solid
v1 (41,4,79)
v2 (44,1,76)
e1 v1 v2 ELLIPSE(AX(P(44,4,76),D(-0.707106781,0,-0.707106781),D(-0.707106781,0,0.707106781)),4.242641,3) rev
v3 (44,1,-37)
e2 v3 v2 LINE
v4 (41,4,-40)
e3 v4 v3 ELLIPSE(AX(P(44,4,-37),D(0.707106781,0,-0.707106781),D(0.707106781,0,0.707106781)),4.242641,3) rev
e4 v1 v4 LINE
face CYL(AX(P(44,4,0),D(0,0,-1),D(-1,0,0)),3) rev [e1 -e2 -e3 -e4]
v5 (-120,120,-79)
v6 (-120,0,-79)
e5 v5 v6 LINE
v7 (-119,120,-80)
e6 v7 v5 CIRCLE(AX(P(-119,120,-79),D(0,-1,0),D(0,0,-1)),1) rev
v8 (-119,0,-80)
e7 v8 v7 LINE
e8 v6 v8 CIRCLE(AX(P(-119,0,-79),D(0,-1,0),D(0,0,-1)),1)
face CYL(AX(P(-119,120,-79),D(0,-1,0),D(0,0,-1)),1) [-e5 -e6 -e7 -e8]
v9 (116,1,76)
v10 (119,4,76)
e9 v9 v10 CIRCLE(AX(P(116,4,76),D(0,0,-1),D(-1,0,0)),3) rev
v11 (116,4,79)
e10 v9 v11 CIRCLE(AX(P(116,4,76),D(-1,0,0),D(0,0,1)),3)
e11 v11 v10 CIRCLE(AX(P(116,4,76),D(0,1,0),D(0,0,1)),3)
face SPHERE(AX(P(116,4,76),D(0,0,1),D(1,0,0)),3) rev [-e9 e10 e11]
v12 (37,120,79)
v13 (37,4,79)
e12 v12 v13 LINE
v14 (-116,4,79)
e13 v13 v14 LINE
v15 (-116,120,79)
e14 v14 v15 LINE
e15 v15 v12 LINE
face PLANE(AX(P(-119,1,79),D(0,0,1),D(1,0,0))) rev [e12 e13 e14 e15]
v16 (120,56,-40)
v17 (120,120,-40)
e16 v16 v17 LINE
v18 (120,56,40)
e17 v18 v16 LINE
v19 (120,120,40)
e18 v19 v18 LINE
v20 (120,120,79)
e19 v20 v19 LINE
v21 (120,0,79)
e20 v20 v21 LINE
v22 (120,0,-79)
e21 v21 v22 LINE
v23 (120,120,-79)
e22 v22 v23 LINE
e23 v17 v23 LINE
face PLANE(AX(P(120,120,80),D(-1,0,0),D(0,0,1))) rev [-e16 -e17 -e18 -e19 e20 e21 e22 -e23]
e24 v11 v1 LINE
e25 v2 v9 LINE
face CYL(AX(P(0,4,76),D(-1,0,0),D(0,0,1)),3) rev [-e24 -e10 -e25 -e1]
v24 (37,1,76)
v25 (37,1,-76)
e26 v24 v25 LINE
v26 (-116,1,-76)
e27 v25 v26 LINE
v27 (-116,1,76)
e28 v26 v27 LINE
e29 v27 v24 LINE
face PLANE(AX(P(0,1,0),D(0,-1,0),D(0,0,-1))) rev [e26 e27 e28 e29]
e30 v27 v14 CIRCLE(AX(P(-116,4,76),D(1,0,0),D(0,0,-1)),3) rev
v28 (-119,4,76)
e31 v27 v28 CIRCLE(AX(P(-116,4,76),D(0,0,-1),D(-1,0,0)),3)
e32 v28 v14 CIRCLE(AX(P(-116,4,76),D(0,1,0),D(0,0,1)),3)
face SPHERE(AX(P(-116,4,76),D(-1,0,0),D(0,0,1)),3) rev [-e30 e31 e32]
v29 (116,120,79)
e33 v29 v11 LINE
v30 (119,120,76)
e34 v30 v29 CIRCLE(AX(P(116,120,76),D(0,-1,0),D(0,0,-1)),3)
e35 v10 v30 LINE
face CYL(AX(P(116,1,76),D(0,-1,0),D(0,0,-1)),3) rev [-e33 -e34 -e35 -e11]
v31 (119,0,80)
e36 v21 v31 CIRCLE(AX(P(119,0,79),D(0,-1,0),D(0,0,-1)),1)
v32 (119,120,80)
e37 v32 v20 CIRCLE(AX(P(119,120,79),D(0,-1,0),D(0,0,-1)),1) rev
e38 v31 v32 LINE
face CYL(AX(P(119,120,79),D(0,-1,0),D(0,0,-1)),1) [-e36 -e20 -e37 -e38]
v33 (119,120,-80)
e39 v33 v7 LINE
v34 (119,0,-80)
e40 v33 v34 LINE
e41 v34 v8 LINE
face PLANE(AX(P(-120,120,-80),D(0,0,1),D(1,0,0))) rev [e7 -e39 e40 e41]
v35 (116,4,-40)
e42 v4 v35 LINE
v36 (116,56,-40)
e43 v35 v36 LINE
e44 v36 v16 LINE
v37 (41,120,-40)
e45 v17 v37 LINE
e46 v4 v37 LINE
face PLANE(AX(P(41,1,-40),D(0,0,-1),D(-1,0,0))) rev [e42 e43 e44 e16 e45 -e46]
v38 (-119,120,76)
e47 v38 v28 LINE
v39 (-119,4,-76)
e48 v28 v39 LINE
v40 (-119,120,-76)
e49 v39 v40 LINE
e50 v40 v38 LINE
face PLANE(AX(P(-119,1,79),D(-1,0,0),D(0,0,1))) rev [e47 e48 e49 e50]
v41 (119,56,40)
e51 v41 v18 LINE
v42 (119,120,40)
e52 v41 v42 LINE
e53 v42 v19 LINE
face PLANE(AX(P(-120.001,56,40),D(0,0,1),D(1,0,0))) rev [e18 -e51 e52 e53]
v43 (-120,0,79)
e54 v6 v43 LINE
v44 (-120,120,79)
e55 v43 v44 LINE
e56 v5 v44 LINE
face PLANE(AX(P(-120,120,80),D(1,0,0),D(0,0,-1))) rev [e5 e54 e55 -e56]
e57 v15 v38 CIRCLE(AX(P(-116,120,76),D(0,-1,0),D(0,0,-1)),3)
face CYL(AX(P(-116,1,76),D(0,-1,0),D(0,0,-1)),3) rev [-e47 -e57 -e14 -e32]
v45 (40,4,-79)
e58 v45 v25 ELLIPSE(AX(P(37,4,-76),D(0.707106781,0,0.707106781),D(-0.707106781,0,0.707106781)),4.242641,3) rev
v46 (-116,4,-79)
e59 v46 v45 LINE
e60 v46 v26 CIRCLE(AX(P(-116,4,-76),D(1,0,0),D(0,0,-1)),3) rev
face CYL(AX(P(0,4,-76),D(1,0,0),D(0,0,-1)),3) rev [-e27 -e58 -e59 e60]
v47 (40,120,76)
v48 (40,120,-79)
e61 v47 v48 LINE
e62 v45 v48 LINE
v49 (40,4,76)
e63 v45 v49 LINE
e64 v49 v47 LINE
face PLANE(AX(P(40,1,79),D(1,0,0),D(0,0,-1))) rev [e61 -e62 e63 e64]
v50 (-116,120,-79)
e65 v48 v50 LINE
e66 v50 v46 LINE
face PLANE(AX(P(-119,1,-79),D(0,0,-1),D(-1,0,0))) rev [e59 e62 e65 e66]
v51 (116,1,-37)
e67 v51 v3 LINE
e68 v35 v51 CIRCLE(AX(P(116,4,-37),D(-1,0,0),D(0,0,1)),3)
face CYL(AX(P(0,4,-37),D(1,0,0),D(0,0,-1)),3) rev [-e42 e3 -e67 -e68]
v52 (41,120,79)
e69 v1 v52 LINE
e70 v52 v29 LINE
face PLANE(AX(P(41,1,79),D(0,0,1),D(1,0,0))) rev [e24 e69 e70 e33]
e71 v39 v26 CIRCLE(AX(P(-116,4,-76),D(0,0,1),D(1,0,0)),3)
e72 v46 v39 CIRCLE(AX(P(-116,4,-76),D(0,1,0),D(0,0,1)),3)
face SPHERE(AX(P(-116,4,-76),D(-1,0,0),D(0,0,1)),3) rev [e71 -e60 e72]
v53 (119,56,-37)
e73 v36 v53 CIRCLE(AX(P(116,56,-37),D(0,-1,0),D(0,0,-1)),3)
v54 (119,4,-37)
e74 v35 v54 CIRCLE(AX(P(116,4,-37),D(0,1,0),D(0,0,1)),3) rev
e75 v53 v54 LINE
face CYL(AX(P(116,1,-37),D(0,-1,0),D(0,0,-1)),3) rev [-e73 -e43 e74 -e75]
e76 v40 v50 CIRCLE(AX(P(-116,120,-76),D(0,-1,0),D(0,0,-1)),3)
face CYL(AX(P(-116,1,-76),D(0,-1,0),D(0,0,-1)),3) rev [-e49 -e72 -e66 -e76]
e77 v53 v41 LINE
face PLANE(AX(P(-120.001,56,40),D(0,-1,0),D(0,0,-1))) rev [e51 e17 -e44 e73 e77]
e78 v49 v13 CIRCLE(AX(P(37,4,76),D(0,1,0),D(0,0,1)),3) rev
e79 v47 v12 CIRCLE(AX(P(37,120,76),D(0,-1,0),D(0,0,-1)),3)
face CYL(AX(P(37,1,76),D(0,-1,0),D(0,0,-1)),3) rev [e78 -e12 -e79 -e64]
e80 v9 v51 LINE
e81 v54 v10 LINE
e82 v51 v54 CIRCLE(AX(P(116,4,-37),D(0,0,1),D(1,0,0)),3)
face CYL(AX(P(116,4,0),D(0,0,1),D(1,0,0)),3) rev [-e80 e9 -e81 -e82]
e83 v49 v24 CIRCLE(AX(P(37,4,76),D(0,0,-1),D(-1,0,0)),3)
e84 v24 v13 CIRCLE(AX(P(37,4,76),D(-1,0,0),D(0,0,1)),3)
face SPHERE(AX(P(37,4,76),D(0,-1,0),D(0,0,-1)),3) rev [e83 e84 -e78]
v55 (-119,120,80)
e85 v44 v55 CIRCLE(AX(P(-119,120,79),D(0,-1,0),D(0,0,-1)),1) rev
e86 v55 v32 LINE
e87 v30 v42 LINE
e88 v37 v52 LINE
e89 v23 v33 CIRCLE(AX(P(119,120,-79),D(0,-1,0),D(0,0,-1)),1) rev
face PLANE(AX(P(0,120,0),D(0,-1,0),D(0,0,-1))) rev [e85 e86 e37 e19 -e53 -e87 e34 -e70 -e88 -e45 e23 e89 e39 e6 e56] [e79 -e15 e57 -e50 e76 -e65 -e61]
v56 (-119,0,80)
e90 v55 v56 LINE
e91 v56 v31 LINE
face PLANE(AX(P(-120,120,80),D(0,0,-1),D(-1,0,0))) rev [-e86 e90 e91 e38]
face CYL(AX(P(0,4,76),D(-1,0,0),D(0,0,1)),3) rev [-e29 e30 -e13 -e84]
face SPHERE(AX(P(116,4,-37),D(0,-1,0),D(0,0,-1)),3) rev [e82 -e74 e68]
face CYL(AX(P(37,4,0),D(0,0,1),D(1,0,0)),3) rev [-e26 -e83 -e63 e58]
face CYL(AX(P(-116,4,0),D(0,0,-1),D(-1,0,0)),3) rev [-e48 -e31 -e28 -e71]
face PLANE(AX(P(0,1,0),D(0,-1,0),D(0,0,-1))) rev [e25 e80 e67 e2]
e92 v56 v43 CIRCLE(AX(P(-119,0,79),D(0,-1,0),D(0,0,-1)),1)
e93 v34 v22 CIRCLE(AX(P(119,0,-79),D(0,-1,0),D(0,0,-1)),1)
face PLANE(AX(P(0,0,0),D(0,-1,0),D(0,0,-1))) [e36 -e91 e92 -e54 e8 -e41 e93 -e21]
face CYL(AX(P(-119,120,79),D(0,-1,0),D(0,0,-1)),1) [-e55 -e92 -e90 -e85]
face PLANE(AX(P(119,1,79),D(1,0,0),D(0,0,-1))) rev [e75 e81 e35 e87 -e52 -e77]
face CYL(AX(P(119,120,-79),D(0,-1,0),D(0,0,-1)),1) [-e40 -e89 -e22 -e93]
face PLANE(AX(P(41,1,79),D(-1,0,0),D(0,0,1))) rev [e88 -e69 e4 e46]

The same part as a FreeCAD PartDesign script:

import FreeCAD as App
import Part
import Sketcher


def edges_at(feature, points):
    """Names of the edges that pass closest to the given points."""
    edges = feature.Shape.Edges
    near = lambda p: min(range(len(edges)), key=lambda i: edges[i].distToShape(Part.Vertex(*p))[0])
    return sorted({f"Edge{near(p) + 1}" for p in points})


def add_polygon(sketch, points):
    """Adds a closed chain of lines whose ends are joined by coincident constraints."""
    first, n = sketch.GeometryCount, len(points)
    for a, b in zip(points, points[1:] + points[:1]):
        sketch.addGeometry(Part.LineSegment(App.Vector(*a, 0), App.Vector(*b, 0)), False)
    for i in range(n):
        sketch.addConstraint(Sketcher.Constraint("Coincident", first + i, 2, first + (i + 1) % n, 1))

doc = App.newDocument("Part")
body = doc.addObject("PartDesign::Body", "Body")

# Sketch on XZ plane
sketch1 = body.newObject("Sketcher::SketchObject", "Sketch")
sketch1.AttachmentSupport = (doc.getObject("XZ_Plane"), [""])
sketch1.MapMode = "FlatFace"
add_polygon(sketch1, [(-120, -80), (-120, 80), (120, 80), (120, -80)])  # lines 0-3
sketch1.addConstraint([
    Sketcher.Constraint("Vertical", 0),
    Sketcher.Constraint("Horizontal", 1),
    Sketcher.Constraint("Vertical", 2),
    Sketcher.Constraint("Horizontal", 3),
    Sketcher.Constraint("Symmetric", 0, 2, 2, 2, -1, 1),
    Sketcher.Constraint("DistanceX", 1, 1, 1, 2, 240.0),
    Sketcher.Constraint("DistanceY", 0, 1, 0, 2, 160.0),
])
pad1 = body.newObject("PartDesign::Pad", "Pad")
pad1.Profile = sketch1
pad1.Length = 120
pad1.Reversed = True

# Sketch on XZ plane
sketch2 = body.newObject("Sketcher::SketchObject", "Sketch001")
sketch2.AttachmentSupport = (doc.getObject("XZ_Plane"), [""])
sketch2.MapMode = "FlatFace"
sketch2.AttachmentOffset = App.Placement(App.Vector(0, 0, -120), App.Rotation())
add_polygon(sketch2, [(-119, -79), (-119, 79), (40, 79), (40, -79)])  # lines 0-3
add_polygon(sketch2, [(41, -40), (41, 79), (119, 79), (119, -40)])  # lines 4-7
sketch2.addConstraint([
    Sketcher.Constraint("Vertical", 0),
    Sketcher.Constraint("Horizontal", 1),
    Sketcher.Constraint("Vertical", 2),
    Sketcher.Constraint("Horizontal", 3),
    Sketcher.Constraint("Vertical", 4),
    Sketcher.Constraint("Horizontal", 5),
    Sketcher.Constraint("Vertical", 6),
    Sketcher.Constraint("Horizontal", 7),
    Sketcher.Constraint("Symmetric", 3, 2, 5, 2, -1, 1),
    Sketcher.Constraint("Horizontal", 1, 2, 4, 2),
    Sketcher.Constraint("DistanceX", 1, 1, 1, 2, 159.0),
    Sketcher.Constraint("DistanceX", 5, 1, 5, 2, 78.0),
    Sketcher.Constraint("DistanceY", 0, 1, 0, 2, 158.0),
    Sketcher.Constraint("DistanceY", 4, 1, 4, 2, 119.0),
    Sketcher.Constraint("DistanceX", 0, 2, -1, 1, 119.0),
])
pocket1 = body.newObject("PartDesign::Pocket", "Pocket")
pocket1.Profile = sketch2
pocket1.Length = 119
pocket1.Reversed = True

# Sketch on YZ plane
sketch3 = body.newObject("Sketcher::SketchObject", "Sketch002")
sketch3.AttachmentSupport = (doc.getObject("YZ_Plane"), [""])
sketch3.MapMode = "FlatFace"
sketch3.AttachmentOffset = App.Placement(App.Vector(0, 0, 120), App.Rotation())
add_polygon(sketch3, [(120, 40), (56, 40), (56, -40), (120, -40)])  # lines 0-3
sketch3.addConstraint([
    Sketcher.Constraint("Horizontal", 0),
    Sketcher.Constraint("Vertical", 1),
    Sketcher.Constraint("Horizontal", 2),
    Sketcher.Constraint("Vertical", 3),
    Sketcher.Constraint("DistanceX", 0, 2, 0, 1, 64.0),
    Sketcher.Constraint("DistanceY", 1, 2, 1, 1, 80.0),
    Sketcher.Constraint("DistanceX", -1, 1, 0, 2, 56.0),
    Sketcher.Constraint("DistanceY", -1, 1, 0, 2, 40.0),
])
pocket2 = body.newObject("PartDesign::Pocket", "Pocket001")
pocket2.Profile = sketch3
pocket2.Type = "UpToFirst"
doc.recompute()

fillet = body.newObject("PartDesign::Fillet", "Fillet")
fillet.Base = (pocket2, edges_at(pocket2, [
    (120, 60, 80),
    (-120, 60, 80),
    (-120, 60, -80),
    (120, 60, -80),
]))
fillet.Radius = 1
doc.recompute()

fillet2 = body.newObject("PartDesign::Fillet", "Fillet001")
fillet2.Base = (fillet, edges_at(fillet, [
    (40, 1, 0),
    (-39.5, 1, 79),
    (40, 60.5, 79),
    (-119, 1, 0),
    (-119, 60.5, 79),
    (-39.5, 1, -79),
    (-119, 60.5, -79),
    (119, 1, 19.5),
    (119, 28.5, -40),
    (80, 1, 79),
    (119, 60.5, 79),
    (41, 1, 19.5),
    (80, 1, -40),
]))
fillet2.Radius = 3

doc.recompute()
